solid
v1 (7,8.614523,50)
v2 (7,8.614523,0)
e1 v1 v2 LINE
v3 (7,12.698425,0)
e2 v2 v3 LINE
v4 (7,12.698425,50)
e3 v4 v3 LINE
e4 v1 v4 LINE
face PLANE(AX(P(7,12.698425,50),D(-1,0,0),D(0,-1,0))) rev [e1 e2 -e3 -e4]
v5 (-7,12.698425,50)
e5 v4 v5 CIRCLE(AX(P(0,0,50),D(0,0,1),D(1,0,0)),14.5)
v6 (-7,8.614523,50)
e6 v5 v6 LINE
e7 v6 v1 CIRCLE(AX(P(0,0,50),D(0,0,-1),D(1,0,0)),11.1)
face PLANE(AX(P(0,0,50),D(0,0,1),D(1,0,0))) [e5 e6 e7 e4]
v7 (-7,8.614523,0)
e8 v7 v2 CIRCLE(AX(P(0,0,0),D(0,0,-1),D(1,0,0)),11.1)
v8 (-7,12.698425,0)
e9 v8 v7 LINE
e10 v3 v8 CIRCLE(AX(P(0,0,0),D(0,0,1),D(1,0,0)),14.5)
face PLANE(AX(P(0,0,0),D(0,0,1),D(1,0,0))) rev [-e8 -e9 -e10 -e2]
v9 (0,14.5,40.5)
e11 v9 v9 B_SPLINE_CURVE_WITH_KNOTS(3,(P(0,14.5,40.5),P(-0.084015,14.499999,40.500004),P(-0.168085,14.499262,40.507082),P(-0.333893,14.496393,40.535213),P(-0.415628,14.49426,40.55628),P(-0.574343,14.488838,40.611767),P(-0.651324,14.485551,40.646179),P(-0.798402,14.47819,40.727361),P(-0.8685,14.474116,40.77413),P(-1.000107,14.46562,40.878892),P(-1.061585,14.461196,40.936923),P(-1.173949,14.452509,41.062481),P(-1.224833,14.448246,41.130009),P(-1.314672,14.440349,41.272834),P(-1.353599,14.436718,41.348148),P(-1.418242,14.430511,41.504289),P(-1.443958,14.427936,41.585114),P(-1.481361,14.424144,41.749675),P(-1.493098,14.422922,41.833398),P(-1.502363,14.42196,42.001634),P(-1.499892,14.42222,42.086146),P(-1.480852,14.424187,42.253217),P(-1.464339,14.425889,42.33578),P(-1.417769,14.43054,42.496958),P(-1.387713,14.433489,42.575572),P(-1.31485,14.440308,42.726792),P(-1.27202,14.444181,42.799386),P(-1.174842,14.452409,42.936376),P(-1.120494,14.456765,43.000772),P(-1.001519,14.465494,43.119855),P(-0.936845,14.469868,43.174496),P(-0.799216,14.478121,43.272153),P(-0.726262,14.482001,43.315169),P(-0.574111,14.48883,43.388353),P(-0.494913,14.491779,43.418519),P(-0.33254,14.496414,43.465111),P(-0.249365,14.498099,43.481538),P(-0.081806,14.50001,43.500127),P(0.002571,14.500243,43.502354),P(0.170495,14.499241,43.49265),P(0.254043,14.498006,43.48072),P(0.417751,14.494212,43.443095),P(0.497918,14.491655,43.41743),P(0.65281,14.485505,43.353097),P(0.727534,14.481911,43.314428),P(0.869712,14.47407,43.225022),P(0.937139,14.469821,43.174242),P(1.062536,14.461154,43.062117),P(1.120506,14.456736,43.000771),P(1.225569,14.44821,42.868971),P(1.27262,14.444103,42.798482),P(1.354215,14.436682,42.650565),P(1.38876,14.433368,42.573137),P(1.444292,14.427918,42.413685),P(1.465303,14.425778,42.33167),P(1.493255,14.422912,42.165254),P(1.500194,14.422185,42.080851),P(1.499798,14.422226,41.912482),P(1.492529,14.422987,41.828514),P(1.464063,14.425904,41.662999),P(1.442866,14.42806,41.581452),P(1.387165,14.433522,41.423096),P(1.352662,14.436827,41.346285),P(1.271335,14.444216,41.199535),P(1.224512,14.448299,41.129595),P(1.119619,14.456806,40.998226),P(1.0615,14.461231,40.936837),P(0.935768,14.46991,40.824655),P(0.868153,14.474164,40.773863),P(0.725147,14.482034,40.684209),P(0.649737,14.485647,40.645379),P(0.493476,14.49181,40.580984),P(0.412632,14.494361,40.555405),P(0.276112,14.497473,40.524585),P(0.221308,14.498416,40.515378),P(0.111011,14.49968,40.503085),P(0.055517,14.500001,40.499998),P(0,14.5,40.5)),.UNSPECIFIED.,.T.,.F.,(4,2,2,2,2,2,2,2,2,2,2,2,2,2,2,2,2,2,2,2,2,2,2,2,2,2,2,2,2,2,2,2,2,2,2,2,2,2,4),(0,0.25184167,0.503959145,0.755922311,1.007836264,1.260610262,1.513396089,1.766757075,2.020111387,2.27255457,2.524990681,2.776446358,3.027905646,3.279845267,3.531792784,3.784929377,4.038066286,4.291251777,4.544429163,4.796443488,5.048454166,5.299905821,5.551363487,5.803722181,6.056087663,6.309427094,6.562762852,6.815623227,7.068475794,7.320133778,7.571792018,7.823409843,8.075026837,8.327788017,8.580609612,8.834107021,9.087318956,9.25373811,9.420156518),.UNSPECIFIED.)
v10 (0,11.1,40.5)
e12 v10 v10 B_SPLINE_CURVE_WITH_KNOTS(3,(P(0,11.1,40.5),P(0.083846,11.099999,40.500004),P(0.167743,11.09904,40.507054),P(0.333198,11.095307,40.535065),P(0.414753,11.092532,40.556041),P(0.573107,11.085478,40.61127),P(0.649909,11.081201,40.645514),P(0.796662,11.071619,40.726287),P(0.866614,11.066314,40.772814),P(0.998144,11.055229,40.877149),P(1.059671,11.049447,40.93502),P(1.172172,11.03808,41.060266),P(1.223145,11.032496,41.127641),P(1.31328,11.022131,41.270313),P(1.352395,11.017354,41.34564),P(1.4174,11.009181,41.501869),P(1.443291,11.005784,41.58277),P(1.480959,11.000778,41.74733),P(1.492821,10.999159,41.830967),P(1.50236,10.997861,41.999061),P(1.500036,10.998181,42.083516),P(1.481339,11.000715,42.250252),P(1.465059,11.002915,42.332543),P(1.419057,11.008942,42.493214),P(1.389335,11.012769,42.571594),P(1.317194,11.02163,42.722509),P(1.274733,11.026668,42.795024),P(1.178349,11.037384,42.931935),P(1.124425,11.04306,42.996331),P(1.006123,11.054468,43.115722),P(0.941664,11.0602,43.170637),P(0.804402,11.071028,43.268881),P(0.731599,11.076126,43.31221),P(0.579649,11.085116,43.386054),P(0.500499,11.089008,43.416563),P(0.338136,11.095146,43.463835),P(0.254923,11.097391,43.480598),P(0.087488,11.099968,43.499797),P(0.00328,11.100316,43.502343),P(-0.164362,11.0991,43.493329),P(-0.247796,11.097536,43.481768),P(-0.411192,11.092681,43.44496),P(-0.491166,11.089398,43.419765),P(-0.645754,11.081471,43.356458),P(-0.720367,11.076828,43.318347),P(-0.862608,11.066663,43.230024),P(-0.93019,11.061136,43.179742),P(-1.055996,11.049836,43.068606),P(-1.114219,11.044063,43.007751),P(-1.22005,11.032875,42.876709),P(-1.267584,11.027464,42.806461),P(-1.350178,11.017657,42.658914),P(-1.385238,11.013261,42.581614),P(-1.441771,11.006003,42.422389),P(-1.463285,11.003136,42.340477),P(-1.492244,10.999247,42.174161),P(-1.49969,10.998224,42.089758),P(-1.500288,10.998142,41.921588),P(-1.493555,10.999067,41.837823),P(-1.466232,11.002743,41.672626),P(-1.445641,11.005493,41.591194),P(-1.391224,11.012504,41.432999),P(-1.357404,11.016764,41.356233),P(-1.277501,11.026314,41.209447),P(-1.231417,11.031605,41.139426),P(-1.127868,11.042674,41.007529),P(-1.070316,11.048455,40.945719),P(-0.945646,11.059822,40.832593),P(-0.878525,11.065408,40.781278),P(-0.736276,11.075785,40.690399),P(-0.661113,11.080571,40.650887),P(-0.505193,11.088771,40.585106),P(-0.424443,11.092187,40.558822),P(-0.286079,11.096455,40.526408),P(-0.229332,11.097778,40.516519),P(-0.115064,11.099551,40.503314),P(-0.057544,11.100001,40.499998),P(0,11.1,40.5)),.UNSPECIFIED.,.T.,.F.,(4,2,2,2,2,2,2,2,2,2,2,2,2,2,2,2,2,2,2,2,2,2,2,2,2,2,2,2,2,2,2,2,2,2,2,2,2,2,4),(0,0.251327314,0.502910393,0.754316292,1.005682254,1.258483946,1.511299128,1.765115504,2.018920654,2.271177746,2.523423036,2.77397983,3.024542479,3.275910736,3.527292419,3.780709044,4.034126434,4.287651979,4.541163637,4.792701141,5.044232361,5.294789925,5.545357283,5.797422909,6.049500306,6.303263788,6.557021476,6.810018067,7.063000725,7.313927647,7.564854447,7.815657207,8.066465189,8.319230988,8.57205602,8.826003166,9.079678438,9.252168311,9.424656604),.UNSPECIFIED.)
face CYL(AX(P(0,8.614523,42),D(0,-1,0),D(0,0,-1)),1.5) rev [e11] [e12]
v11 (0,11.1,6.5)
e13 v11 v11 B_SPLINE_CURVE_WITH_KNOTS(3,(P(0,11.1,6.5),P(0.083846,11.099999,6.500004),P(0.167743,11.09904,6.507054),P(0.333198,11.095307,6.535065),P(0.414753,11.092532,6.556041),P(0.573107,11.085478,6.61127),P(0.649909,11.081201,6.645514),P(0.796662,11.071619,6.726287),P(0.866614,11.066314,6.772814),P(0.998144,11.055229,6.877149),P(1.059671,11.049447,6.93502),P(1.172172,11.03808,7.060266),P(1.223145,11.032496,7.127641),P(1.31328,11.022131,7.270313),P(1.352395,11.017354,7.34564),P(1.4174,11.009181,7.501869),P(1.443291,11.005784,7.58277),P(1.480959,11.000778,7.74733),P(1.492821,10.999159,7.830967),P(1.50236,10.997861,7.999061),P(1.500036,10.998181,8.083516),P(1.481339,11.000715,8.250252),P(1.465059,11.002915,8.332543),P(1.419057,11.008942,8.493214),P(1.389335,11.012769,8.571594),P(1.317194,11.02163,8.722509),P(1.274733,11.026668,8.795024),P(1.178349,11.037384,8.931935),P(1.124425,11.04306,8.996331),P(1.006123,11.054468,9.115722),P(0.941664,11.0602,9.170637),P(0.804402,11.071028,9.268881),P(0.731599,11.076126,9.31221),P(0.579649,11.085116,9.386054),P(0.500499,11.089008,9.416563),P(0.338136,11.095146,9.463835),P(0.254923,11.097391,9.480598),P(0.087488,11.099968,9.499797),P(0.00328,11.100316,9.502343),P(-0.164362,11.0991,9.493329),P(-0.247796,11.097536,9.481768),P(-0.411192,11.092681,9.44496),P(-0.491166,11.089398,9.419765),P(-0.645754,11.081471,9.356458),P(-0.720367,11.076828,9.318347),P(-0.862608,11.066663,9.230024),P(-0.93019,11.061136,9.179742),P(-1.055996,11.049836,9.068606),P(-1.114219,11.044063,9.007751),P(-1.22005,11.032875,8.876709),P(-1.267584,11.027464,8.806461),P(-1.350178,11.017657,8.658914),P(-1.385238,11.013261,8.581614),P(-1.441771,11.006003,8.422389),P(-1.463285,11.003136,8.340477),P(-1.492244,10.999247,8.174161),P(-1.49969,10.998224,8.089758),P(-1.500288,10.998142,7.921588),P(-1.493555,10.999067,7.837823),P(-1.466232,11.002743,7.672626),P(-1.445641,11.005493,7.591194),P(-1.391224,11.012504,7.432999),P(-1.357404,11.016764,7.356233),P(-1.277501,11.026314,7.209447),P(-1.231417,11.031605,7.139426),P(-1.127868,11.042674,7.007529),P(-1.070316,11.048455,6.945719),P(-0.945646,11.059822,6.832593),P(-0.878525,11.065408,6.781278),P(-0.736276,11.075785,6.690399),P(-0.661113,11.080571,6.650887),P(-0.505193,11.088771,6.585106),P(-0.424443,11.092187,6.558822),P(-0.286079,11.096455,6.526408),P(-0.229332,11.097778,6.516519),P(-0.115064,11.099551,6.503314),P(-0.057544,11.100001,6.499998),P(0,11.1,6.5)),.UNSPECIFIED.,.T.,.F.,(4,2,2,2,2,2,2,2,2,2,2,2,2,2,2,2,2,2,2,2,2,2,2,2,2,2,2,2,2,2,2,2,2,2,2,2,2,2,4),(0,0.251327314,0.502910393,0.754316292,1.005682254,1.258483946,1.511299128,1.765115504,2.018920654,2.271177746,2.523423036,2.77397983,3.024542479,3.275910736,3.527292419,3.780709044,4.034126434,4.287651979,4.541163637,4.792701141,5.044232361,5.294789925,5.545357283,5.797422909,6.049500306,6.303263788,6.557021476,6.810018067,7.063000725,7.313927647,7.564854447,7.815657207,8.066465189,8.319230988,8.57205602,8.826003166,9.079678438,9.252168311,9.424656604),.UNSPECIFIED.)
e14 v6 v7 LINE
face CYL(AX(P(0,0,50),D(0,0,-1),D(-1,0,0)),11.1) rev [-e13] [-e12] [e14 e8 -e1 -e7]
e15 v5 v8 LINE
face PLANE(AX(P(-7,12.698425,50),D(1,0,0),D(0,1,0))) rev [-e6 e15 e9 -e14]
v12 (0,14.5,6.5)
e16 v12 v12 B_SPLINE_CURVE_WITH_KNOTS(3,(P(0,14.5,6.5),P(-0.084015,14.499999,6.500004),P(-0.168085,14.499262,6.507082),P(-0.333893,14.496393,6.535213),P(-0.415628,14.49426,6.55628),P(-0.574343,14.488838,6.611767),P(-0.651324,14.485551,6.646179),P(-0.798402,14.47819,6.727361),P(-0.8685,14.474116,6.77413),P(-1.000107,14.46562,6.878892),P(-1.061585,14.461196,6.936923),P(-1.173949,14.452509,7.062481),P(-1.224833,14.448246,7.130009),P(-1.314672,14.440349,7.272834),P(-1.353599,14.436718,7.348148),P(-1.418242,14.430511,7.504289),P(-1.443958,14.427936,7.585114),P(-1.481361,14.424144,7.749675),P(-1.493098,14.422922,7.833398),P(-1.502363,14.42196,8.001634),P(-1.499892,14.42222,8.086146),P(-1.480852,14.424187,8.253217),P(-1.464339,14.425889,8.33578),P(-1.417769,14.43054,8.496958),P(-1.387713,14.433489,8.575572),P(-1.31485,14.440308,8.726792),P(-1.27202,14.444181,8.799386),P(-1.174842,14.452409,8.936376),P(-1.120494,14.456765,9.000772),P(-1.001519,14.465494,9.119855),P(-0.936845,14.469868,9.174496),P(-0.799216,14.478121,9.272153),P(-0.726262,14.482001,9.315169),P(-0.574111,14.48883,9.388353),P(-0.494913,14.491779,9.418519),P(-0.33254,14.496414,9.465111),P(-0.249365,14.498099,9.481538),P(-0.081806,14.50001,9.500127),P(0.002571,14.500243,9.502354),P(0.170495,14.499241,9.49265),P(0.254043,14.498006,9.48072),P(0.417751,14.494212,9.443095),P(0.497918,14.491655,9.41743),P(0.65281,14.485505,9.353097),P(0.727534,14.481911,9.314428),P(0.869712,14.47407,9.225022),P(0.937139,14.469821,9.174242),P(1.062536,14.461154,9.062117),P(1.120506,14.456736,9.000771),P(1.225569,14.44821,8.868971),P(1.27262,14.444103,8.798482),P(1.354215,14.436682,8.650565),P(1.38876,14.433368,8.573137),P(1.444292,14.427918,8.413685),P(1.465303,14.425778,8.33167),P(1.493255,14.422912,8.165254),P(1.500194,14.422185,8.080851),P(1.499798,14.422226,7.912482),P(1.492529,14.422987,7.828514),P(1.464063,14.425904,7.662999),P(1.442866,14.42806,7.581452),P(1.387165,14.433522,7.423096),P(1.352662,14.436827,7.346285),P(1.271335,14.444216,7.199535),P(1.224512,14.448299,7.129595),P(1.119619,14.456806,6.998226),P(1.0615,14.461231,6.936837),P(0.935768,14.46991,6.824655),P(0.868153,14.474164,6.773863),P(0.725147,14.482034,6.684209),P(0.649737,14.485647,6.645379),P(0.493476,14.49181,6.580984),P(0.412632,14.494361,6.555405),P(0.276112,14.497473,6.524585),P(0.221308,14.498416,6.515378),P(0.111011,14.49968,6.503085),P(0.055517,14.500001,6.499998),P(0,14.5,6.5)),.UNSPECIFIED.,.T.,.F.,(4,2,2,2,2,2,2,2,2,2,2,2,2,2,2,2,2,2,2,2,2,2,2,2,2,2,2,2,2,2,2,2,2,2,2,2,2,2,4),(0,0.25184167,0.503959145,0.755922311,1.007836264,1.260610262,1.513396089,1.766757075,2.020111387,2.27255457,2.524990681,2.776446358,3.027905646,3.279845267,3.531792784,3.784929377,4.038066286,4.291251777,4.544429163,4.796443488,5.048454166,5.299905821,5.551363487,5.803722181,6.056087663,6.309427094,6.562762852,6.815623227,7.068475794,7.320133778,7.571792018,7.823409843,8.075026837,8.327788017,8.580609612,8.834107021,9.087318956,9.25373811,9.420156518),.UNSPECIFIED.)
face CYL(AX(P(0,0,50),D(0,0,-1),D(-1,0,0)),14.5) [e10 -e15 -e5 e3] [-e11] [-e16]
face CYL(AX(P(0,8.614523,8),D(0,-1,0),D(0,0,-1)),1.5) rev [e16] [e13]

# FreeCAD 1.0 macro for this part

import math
import FreeCAD as App
import Part
import Sketcher

V = App.Vector
Q = App.Units.Quantity

doc = App.newDocument("Part")
params = doc.addObject("Spreadsheet::Sheet", "Params")
for row, (alias, value) in enumerate([
    ("sketch1_radius", "11.1 mm"),
    ("sketch1_radius2", "14.5 mm"),
    ("pad1_length", "50 mm"),
    ("sketch2_diameter", "3 mm"),
], start=1):
    params.set(f"A{row}", alias)
    params.set(f"B{row}", "=" + value)
    params.setAlias(f"B{row}", alias)

body = doc.addObject("PartDesign::Body", "Body")

# Sketch on XY plane
sketch1 = body.newObject("Sketcher::SketchObject", "Sketch")
sketch1.AttachmentSupport = (doc.getObject("XY_Plane"), [""])
sketch1.MapMode = "FlatFace"
sketch1.addGeometry([
    Part.LineSegment(V(-7, 12.698425, 0), V(-7, 8.614523, 0)),
    Part.ArcOfCircle(Part.Circle(V(0, 0, 0), V(0, 0, 1), 11.1), math.radians(50.903335), math.radians(129.096665)),
    Part.LineSegment(V(7, 8.614523, 0), V(7, 12.698425, 0)),
    Part.ArcOfCircle(Part.Circle(V(0, 0, 0), V(0, 0, 1), 14.5), math.radians(61.134273), math.radians(118.865727)),
], False)
sketch1.addConstraint([
    Sketcher.Constraint("Coincident", 0, 2, 1, 2),
    Sketcher.Constraint("Coincident", 1, 1, 2, 1),
    Sketcher.Constraint("Coincident", 2, 2, 3, 1),
    Sketcher.Constraint("Coincident", 3, 2, 0, 1),
    Sketcher.Constraint("Vertical", 0),
    Sketcher.Constraint("Vertical", 2),
    Sketcher.Constraint("Coincident", 1, 3, -1, 1),
    Sketcher.Constraint("Coincident", 3, 3, -1, 1),
    Sketcher.Constraint("Horizontal", 0, 2, 1, 1),
    Sketcher.Constraint("Radius", 1, Q("11.1 mm")),
    Sketcher.Constraint("Radius", 3, Q("14.5 mm")),
    Sketcher.Constraint("DistanceX", 0, 2, -1, 1, Q("7 mm")),
])
sketch1.setExpression("Constraints[9]", "Params.sketch1_radius")
sketch1.setExpression("Constraints[10]", "Params.sketch1_radius2")
pad1 = body.newObject("PartDesign::Pad", "Pad")
pad1.Profile = sketch1
pad1.setExpression("Length", "Params.pad1_length")

# Sketch on XZ plane
sketch2 = body.newObject("Sketcher::SketchObject", "Sketch001")
sketch2.AttachmentSupport = (doc.getObject("XZ_Plane"), [""])
sketch2.MapMode = "FlatFace"
sketch2.addGeometry([
    Part.Circle(V(0, 8, 0), V(0, 0, 1), 1.5),
    Part.Circle(V(0, 42, 0), V(0, 0, 1), 1.5),
], False)
sketch2.addConstraint([
    Sketcher.Constraint("Equal", 0, 1),
    Sketcher.Constraint("PointOnObject", 0, 3, -2),
    Sketcher.Constraint("PointOnObject", 1, 3, -2),
    Sketcher.Constraint("Diameter", 0, Q("3 mm")),
    Sketcher.Constraint("DistanceY", -1, 1, 0, 3, Q("8 mm")),
    Sketcher.Constraint("DistanceY", -1, 1, 1, 3, Q("42 mm")),
])
sketch2.setExpression("Constraints[3]", "Params.sketch2_diameter")
pocket1 = body.newObject("PartDesign::Pocket", "Pocket")
pocket1.Profile = sketch2
pocket1.Type = "ThroughAll"
pocket1.Midplane = True

doc.recompute()
